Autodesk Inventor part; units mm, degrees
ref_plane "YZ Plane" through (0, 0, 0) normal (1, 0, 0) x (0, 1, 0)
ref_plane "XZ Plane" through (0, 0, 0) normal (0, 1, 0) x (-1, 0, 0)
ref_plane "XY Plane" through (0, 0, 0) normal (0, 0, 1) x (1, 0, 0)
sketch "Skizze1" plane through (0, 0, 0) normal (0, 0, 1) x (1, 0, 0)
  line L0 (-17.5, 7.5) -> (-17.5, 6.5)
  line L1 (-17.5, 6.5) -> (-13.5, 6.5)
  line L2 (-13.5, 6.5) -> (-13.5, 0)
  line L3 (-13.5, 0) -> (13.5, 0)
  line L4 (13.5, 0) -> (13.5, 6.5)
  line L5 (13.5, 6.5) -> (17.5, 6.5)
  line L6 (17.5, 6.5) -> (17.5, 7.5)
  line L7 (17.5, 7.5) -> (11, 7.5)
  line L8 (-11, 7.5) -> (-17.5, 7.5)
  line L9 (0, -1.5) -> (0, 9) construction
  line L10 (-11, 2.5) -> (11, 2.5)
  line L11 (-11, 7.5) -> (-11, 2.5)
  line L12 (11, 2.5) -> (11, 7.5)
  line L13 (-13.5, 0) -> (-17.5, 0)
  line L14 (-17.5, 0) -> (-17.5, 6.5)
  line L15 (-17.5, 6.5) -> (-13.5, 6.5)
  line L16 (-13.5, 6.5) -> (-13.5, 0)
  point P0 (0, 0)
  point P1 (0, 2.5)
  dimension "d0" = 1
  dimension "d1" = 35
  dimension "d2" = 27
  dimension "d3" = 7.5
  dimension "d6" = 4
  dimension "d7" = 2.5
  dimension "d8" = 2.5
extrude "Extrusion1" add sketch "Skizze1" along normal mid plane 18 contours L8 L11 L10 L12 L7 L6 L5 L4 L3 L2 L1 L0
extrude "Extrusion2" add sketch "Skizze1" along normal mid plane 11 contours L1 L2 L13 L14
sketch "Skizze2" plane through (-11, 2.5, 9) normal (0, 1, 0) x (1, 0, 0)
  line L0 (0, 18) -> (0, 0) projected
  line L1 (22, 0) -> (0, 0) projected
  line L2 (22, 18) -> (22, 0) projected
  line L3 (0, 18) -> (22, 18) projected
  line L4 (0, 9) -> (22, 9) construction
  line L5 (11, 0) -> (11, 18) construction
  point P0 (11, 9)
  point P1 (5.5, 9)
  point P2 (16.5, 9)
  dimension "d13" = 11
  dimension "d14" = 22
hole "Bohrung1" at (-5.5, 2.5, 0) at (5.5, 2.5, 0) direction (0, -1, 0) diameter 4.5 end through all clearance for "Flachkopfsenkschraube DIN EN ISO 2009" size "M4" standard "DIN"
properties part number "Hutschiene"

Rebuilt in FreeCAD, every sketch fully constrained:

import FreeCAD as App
import Part
import Sketcher
Q = App.Units.Quantity


def add_polygon(sketch, points):
    """Adds a closed chain of lines whose ends are joined by coincident constraints."""
    first, n = sketch.GeometryCount, len(points)
    for a, b in zip(points, points[1:] + points[:1]):
        sketch.addGeometry(Part.LineSegment(App.Vector(*a, 0), App.Vector(*b, 0)), False)
    for i in range(n):
        sketch.addConstraint(Sketcher.Constraint("Coincident", first + i, 2, first + (i + 1) % n, 1))

doc = App.newDocument("Part")
body = doc.addObject("PartDesign::Body", "Body")

# Sketch on XY plane
sketch1 = body.newObject("Sketcher::SketchObject", "Sketch")
sketch1.AttachmentSupport = (doc.getObject("XY_Plane"), [""])
sketch1.MapMode = "FlatFace"
add_polygon(sketch1, [(-11, 7.5), (-17.5, 7.5), (-17.5, 6.5), (-13.5, 6.5), (-13.5, 0), (13.5, 0), (13.5, 6.5), (17.5, 6.5), (17.5, 7.5), (11, 7.5), (11, 2.5), (-11, 2.5)])  # lines 0-11
sketch1.addConstraint([
    Sketcher.Constraint("Horizontal", 0),
    Sketcher.Constraint("Vertical", 1),
    Sketcher.Constraint("Horizontal", 2),
    Sketcher.Constraint("Vertical", 3),
    Sketcher.Constraint("Horizontal", 4),
    Sketcher.Constraint("Vertical", 5),
    Sketcher.Constraint("Horizontal", 6),
    Sketcher.Constraint("Vertical", 7),
    Sketcher.Constraint("Horizontal", 8),
    Sketcher.Constraint("Vertical", 9),
    Sketcher.Constraint("Horizontal", 10),
    Sketcher.Constraint("Vertical", 11),
    Sketcher.Constraint("Symmetric", 3, 2, 4, 2, -1, 1),
    Sketcher.Constraint("Symmetric", 1, 2, 6, 2, -2),
    Sketcher.Constraint("Symmetric", 8, 2, 11, 2, -2),
    Sketcher.Constraint("Equal", 8, 3),
    Sketcher.Constraint("DistanceX", 2, 1, 2, 2, Q("4 mm")),
    Sketcher.Constraint("DistanceX", 4, 1, 4, 2, Q("27 mm")),
    Sketcher.Constraint("DistanceY", 1, 2, 1, 1, Q("1 mm")),
    Sketcher.Constraint("DistanceY", 9, 2, 5, 2, Q("4 mm")),
    Sketcher.Constraint("DistanceY", -1, 1, 0, 2, Q("7.5 mm")),
])
pad1 = body.newObject("PartDesign::Pad", "Pad")
pad1.Profile = sketch1
pad1.Length = 18
pad1.Midplane = True

# Sketch on XY plane
sketch2 = body.newObject("Sketcher::SketchObject", "Sketch001")
sketch2.AttachmentSupport = (doc.getObject("XY_Plane"), [""])
sketch2.MapMode = "FlatFace"
add_polygon(sketch2, [(-13.5, 6.5), (-17.5, 6.5), (-17.5, 0), (-13.5, 0)])  # lines 0-3
sketch2.addConstraint([
    Sketcher.Constraint("Horizontal", 0),
    Sketcher.Constraint("Vertical", 1),
    Sketcher.Constraint("Horizontal", 2),
    Sketcher.Constraint("Vertical", 3),
    Sketcher.Constraint("PointOnObject", 1, 2, -1),
    Sketcher.Constraint("DistanceX", 0, 2, 0, 1, Q("4 mm")),
    Sketcher.Constraint("DistanceY", 1, 2, 1, 1, Q("6.5 mm")),
    Sketcher.Constraint("DistanceX", 0, 2, -1, 1, Q("17.5 mm")),
])
pad2 = body.newObject("PartDesign::Pad", "Pad001")
pad2.Profile = sketch2
pad2.Length = 11
pad2.Midplane = True

# Sketch on XZ plane
sketch3 = body.newObject("Sketcher::SketchObject", "Sketch002")
sketch3.AttachmentSupport = (doc.getObject("XZ_Plane"), [""])
sketch3.MapMode = "FlatFace"
sketch3.AttachmentOffset = App.Placement(App.Vector(0, 0, -2.5), App.Rotation())
sketch3.addGeometry([
    Part.Circle(App.Vector(-5.5, 0, 0), App.Vector(0, 0, 1), 2.2),
    Part.Circle(App.Vector(5.5, 0, 0), App.Vector(0, 0, 1), 2.2),
], False)
sketch3.addConstraint([
    Sketcher.Constraint("Equal", 0, 1),
    Sketcher.Constraint("Symmetric", 0, 3, 1, 3, -1, 1),
    Sketcher.Constraint("PointOnObject", 0, 3, -1),
    Sketcher.Constraint("Diameter", 0, Q("4.5 mm")),
    Sketcher.Constraint("DistanceX", 0, 3, 1, 3, Q("11 mm")),
])
doc.recompute()
hole = body.newObject("PartDesign::Hole", "Hole")
hole.Profile = sketch3
hole.ThreadType = "None"
hole.Diameter = 4.5
hole.DepthType = "ThroughAll"
hole.Reversed = True

doc.recompute()
